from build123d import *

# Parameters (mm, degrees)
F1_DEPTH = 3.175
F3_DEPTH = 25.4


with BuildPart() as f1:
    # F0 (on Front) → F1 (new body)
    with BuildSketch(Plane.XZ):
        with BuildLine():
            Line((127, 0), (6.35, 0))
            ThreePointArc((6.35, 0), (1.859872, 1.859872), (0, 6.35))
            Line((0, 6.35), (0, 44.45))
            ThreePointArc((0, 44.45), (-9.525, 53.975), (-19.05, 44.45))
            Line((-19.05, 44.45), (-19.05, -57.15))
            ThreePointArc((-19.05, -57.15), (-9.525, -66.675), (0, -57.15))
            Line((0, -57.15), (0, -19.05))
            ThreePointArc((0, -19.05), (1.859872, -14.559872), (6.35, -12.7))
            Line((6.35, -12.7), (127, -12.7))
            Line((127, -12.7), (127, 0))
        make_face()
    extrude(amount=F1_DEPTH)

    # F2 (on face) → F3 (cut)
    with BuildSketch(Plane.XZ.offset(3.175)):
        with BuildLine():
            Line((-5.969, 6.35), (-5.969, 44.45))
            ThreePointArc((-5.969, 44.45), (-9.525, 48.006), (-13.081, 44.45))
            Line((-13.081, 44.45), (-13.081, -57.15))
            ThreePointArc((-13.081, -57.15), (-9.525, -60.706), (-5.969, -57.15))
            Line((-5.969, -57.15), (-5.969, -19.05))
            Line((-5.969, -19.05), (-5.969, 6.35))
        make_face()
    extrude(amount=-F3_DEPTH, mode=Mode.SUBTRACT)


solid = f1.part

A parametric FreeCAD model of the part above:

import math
import FreeCAD as App
import Part
import Sketcher
Q = App.Units.Quantity

doc = App.newDocument("Part")
body = doc.addObject("PartDesign::Body", "Body")

sketch1 = doc.addObject("Sketcher::SketchObject", "Sketch")
body.addObject(sketch1)
sketch1.AttachmentSupport = (doc.XZ_Plane, [""])
sketch1.MapMode = "FlatFace"
sketch1.addGeometry([
    Part.LineSegment(App.Vector(127, 0, 0), App.Vector(6, 0, 0)),
    Part.ArcOfCircle(Part.Circle(App.Vector(6, 6, 0), App.Vector(0, 0, 1), 6), math.radians(-180), math.radians(-90)),
    Part.LineSegment(App.Vector(0, 6, 0), App.Vector(0, 44, 0)),
    Part.ArcOfCircle(Part.Circle(App.Vector(-10, 44, 0), App.Vector(0, 0, 1), 10), math.radians(0), math.radians(180)),
    Part.LineSegment(App.Vector(-19, 44, 0), App.Vector(-19, -57, 0)),
    Part.ArcOfCircle(Part.Circle(App.Vector(-10, -57, 0), App.Vector(0, 0, 1), 10), math.radians(180), math.radians(360)),
    Part.LineSegment(App.Vector(0, -57, 0), App.Vector(0, -19, 0)),
    Part.ArcOfCircle(Part.Circle(App.Vector(6, -19, 0), App.Vector(0, 0, 1), 6), math.radians(90), math.radians(180)),
    Part.LineSegment(App.Vector(6, -13, 0), App.Vector(127, -13, 0)),
    Part.LineSegment(App.Vector(127, -13, 0), App.Vector(127, 0, 0)),
], False)
sketch1.addConstraint([
    Sketcher.Constraint("Tangent", 0, 2, 1, 2),
    Sketcher.Constraint("Tangent", 1, 1, 2, 1),
    Sketcher.Constraint("Tangent", 2, 2, 3, 1),
    Sketcher.Constraint("Tangent", 3, 2, 4, 1),
    Sketcher.Constraint("Tangent", 4, 2, 5, 1),
    Sketcher.Constraint("Tangent", 5, 2, 6, 1),
    Sketcher.Constraint("Tangent", 6, 2, 7, 2),
    Sketcher.Constraint("Tangent", 7, 1, 8, 1),
    Sketcher.Constraint("Coincident", 8, 2, 9, 1),
    Sketcher.Constraint("Coincident", 9, 2, 0, 1),
    Sketcher.Constraint("Horizontal", 0),
    Sketcher.Constraint("Vertical", 2),
    Sketcher.Constraint("Vertical", 4),
    Sketcher.Constraint("Vertical", 6),
    Sketcher.Constraint("Horizontal", 8),
    Sketcher.Constraint("Vertical", 9),
    Sketcher.Constraint("Equal", 3, 5),
    Sketcher.Constraint("Equal", 1, 7),
    Sketcher.Constraint("PointOnObject", 0, 2, -1),
    Sketcher.Constraint("PointOnObject", 1, 1, -2),
    Sketcher.Constraint("Equal", 2, 6),
    Sketcher.Constraint("DistanceY", 4, 2, 4, 1, Q("4 in")),
    Sketcher.Constraint("Radius", 1, Q("0.25 in")),
    Sketcher.Constraint("DistanceY", 2, 1, 2, 2, Q("1.5 in")),
    Sketcher.Constraint("DistanceX", -1, 1, 8, 2, Q("5 in")),
    Sketcher.Constraint("Radius", 3, Q("0.375 in")),
])
pad1 = doc.addObject("PartDesign::Pad", "Pad")
body.addObject(pad1)
pad1.Profile = sketch1
pad1.Length = Q("0.125 in")

sketch2 = doc.addObject("Sketcher::SketchObject", "Sketch001")
body.addObject(sketch2)
sketch2.AttachmentSupport = (doc.XZ_Plane, [""])
sketch2.MapMode = "FlatFace"
sketch2.AttachmentOffset = App.Placement(App.Vector(0, 0, 0.125 * 25.4), App.Rotation())
sketch2.addGeometry([
    Part.ArcOfCircle(Part.Circle(App.Vector(-9.5, 44.5, 0), App.Vector(0, 0, 1), 3.6), math.radians(0), math.radians(180)),
    Part.LineSegment(App.Vector(-13.1, 44.5, 0), App.Vector(-13.1, -57.1, 0)),
    Part.ArcOfCircle(Part.Circle(App.Vector(-9.5, -57.1, 0), App.Vector(0, 0, 1), 3.6), math.radians(180), math.radians(360)),
    Part.LineSegment(App.Vector(-6, -57.1, 0), App.Vector(-6, 44.5, 0)),
], False)
sketch2.addConstraint([
    Sketcher.Constraint("Tangent", 0, 2, 1, 1),
    Sketcher.Constraint("Tangent", 1, 2, 2, 1),
    Sketcher.Constraint("Tangent", 2, 2, 3, 1),
    Sketcher.Constraint("Tangent", 3, 2, 0, 1),
    Sketcher.Constraint("Vertical", 1),
    Sketcher.Constraint("Vertical", 3),
    Sketcher.Constraint("DistanceY", 1, 2, 1, 1, Q("4 in")),
    Sketcher.Constraint("Radius", 0, Q("0.14 in")),
    Sketcher.Constraint("DistanceY", -1, 1, 0, 3, Q("1.75 in")),
    Sketcher.Constraint("DistanceX", 0, 3, -1, 1, Q("0.375 in")),
])
pocket1 = doc.addObject("PartDesign::Pocket", "Pocket")
body.addObject(pocket1)
pocket1.Profile = sketch2
pocket1.Length = Q("1 in")

doc.recompute()
